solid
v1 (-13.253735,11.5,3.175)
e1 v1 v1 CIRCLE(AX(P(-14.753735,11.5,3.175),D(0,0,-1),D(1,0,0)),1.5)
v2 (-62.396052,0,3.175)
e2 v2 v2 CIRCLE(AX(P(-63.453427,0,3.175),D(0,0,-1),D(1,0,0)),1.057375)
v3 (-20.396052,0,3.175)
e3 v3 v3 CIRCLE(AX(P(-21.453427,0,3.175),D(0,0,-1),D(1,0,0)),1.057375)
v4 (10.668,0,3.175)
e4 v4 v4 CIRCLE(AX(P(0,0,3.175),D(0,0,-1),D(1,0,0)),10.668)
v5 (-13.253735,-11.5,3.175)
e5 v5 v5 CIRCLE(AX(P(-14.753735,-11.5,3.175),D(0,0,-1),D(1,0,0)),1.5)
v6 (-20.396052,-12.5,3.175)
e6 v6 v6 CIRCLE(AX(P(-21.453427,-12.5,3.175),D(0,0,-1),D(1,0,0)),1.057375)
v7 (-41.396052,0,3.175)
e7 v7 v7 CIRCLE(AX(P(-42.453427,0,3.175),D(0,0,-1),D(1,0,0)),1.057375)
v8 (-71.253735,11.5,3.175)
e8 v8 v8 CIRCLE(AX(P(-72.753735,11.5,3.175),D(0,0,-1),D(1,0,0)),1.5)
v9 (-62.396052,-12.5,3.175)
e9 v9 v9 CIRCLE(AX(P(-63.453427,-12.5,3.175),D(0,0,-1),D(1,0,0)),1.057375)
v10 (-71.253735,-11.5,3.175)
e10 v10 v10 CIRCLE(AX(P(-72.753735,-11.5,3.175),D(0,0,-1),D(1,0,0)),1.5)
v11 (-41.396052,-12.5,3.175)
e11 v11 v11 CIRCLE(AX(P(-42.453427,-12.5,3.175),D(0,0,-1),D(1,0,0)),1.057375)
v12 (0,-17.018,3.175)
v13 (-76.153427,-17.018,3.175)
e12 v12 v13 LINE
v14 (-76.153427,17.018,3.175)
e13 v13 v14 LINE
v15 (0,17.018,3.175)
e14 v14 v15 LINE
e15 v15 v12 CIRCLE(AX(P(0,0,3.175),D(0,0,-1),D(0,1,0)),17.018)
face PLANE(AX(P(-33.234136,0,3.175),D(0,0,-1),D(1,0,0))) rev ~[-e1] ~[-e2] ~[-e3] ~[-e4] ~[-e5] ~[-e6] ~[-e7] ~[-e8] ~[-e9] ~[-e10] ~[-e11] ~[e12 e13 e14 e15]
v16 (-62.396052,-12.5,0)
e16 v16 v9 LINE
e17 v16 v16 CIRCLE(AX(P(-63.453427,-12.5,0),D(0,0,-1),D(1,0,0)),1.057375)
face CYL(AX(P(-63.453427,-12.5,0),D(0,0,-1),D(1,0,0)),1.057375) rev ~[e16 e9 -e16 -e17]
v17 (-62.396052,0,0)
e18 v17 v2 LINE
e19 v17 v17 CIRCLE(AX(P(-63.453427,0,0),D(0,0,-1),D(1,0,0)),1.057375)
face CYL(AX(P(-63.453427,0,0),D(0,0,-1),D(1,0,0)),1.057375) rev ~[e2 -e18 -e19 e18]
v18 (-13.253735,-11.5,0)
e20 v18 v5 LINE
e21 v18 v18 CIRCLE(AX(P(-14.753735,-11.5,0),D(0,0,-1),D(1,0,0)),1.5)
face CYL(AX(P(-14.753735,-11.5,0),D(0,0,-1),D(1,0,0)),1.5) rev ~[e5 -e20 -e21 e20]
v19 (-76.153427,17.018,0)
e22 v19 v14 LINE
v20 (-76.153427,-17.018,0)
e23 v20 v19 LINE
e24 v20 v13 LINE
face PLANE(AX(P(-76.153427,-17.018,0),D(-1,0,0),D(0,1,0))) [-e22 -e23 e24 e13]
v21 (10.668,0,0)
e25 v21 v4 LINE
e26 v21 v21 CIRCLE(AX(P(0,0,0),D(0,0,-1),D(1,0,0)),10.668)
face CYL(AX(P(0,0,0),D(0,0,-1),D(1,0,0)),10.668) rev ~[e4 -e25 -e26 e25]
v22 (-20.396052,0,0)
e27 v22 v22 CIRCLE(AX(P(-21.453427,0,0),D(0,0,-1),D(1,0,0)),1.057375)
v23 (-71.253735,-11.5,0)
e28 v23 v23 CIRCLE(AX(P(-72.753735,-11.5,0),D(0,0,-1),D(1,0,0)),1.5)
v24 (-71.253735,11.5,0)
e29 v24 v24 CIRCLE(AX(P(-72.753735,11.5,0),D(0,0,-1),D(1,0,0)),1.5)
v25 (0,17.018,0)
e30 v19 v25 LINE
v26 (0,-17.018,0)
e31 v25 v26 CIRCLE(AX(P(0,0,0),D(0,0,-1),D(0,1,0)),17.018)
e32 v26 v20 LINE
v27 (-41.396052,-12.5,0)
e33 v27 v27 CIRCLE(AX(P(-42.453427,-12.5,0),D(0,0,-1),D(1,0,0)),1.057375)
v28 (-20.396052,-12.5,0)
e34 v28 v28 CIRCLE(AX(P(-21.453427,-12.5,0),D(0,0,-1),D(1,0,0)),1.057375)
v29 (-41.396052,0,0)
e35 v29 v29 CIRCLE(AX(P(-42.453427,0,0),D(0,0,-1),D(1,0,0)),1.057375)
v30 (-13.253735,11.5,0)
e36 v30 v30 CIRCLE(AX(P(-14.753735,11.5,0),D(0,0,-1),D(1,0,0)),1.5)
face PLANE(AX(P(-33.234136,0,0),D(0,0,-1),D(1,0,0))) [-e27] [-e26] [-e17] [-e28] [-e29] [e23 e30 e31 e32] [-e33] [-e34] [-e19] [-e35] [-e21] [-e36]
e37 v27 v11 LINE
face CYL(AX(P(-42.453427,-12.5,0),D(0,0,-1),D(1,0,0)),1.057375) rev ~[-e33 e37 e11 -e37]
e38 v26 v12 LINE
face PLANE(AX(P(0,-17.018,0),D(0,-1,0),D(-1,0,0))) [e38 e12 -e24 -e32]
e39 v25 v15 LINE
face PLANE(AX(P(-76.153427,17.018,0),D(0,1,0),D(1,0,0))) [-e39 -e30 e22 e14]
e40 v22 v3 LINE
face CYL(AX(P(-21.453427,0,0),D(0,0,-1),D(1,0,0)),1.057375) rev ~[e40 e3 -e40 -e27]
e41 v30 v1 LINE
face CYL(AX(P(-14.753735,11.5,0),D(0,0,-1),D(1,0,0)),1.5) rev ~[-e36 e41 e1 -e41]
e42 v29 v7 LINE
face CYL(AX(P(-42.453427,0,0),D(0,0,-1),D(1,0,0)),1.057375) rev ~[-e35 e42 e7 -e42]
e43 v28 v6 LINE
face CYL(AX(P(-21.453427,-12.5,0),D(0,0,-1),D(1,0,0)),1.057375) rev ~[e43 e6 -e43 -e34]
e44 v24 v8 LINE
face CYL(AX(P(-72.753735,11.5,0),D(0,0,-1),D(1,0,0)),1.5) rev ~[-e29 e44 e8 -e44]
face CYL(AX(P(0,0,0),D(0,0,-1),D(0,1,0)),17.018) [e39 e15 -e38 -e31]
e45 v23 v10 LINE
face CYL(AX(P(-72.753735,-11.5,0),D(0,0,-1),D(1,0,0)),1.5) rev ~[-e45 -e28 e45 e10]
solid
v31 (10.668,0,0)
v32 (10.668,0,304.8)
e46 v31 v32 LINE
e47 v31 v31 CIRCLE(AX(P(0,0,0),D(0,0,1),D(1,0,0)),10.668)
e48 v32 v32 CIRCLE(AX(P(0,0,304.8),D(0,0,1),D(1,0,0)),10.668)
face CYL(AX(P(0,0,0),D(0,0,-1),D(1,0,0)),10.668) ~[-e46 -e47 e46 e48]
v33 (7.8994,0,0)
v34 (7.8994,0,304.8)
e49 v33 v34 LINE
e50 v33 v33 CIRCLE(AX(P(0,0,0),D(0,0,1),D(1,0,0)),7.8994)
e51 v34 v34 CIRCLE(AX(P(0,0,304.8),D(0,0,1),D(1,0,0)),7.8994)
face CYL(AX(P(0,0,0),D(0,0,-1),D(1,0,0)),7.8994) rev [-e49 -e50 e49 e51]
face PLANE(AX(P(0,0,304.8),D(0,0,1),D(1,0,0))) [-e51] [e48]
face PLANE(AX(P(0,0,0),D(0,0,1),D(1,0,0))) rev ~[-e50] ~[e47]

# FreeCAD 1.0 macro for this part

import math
import FreeCAD as App
import Part
import Sketcher

V = App.Vector
Q = App.Units.Quantity

doc = App.newDocument("Part")
body = doc.addObject("PartDesign::Body", "Body")

sketch1 = body.newObject("Sketcher::SketchObject", "Sketch")
sketch1.AttachmentSupport = (doc.getObject("XY_Plane"), [""])
sketch1.MapMode = "FlatFace"
sketch1.addGeometry([
    Part.Circle(V(0, 0, 0), V(0, 0, 1), 11),
    Part.Circle(V(0, 0, 0), V(0, 0, 1), 8),
], False)
sketch1.addConstraint([
    Sketcher.Constraint("Coincident", 0, 3, -1, 1),
    Sketcher.Constraint("Coincident", 1, 3, -1, 1),
    Sketcher.Constraint("Diameter", 0, Q("0.84 in")),
    Sketcher.Constraint("Diameter", 1, Q("0.622 in")),
])
pad1 = body.newObject("PartDesign::Pad", "Pad")
pad1.Profile = sketch1
pad1.Length = Q("12 in")
body2 = doc.addObject("PartDesign::Body", "Body001")

sketch2 = body2.newObject("Sketcher::SketchObject", "Sketch001")
sketch2.AttachmentSupport = (doc.getObject("XY_Plane001"), [""])
sketch2.MapMode = "FlatFace"
sketch2.addGeometry([
    Part.LineSegment(V(-76, 17, 0), V(0, 17, 0)),
    Part.ArcOfCircle(Part.Circle(V(0, 0, 0), V(0, 0, 1), 17), math.radians(-90), math.radians(90)),
    Part.LineSegment(V(0, -17, 0), V(-76, -17, 0)),
    Part.LineSegment(V(-76, -17, 0), V(-76, 17, 0)),
    Part.Circle(V(0, 0, 0), V(0, 0, 1), 11),
], False)
sketch2.addConstraint([
    Sketcher.Constraint("Tangent", 0, 2, 1, 2),
    Sketcher.Constraint("Tangent", 1, 1, 2, 1),
    Sketcher.Constraint("Coincident", 2, 2, 3, 1),
    Sketcher.Constraint("Coincident", 3, 2, 0, 1),
    Sketcher.Constraint("Horizontal", 0),
    Sketcher.Constraint("Horizontal", 2),
    Sketcher.Constraint("Vertical", 3),
    Sketcher.Constraint("Coincident", 1, 3, -1, 1),
    Sketcher.Constraint("Coincident", 4, 3, -1, 1),
    Sketcher.Constraint("Diameter", 4, Q("0.84 in")),
    Sketcher.Constraint("Radius", 1, Q("0.67 in")),
    Sketcher.Constraint("DistanceX", 0, 1, 0, 2, Q("76.153427 mm")),
])
pad2 = body2.newObject("PartDesign::Pad", "Pad001")
pad2.Profile = sketch2
pad2.Length = Q("0.125 in")

sketch3 = body2.newObject("Sketcher::SketchObject", "Sketch002")
sketch3.AttachmentSupport = (doc.getObject("XY_Plane001"), [""])
sketch3.MapMode = "FlatFace"
sketch3.addGeometry([
    Part.Circle(V(-63.5, 0, 0), V(0, 0, 1), 1.1),
    Part.Circle(V(-63.5, -12.5, 0), V(0, 0, 1), 1.1),
    Part.Circle(V(-42.5, 0, 0), V(0, 0, 1), 1.1),
    Part.Circle(V(-42.5, -12.5, 0), V(0, 0, 1), 1.1),
    Part.Circle(V(-21.5, 0, 0), V(0, 0, 1), 1.1),
    Part.Circle(V(-21.5, -12.5, 0), V(0, 0, 1), 1.1),
], False)
sketch3.addConstraint([
    Sketcher.Constraint("Equal", 0, 1),
    Sketcher.Constraint("Equal", 1, 2),
    Sketcher.Constraint("Equal", 2, 3),
    Sketcher.Constraint("Equal", 3, 4),
    Sketcher.Constraint("Equal", 4, 5),
    Sketcher.Constraint("PointOnObject", 0, 3, -1),
    Sketcher.Constraint("PointOnObject", 2, 3, -1),
    Sketcher.Constraint("PointOnObject", 4, 3, -1),
    Sketcher.Constraint("Horizontal", 1, 3, 3, 3),
    Sketcher.Constraint("Horizontal", 3, 3, 5, 3),
    Sketcher.Constraint("Vertical", 0, 3, 1, 3),
    Sketcher.Constraint("Vertical", 2, 3, 3, 3),
    Sketcher.Constraint("Vertical", 4, 3, 5, 3),
    Sketcher.Constraint("Diameter", 0, Q("2.11475 mm")),
    Sketcher.Constraint("DistanceY", 1, 3, -1, 1, Q("12.5 mm")),
    Sketcher.Constraint("DistanceX", 0, 3, 2, 3, Q("21 mm")),
    Sketcher.Constraint("DistanceX", 2, 3, 4, 3, Q("21 mm")),
    Sketcher.Constraint("DistanceX", 0, 3, -1, 1, Q("63.453427 mm")),
])
pocket1 = body2.newObject("PartDesign::Pocket", "Pocket")
pocket1.Profile = sketch3
pocket1.Type = "ThroughAll"
pocket1.Reversed = True

sketch4 = body2.newObject("Sketcher::SketchObject", "Sketch003")
sketch4.AttachmentSupport = (doc.getObject("XY_Plane001"), [""])
sketch4.MapMode = "FlatFace"
sketch4.addGeometry([
    Part.Circle(V(-72.8, -11.5, 0), V(0, 0, 1), 1.5),
    Part.Circle(V(-72.8, 11.5, 0), V(0, 0, 1), 1.5),
    Part.Circle(V(-14.8, -11.5, 0), V(0, 0, 1), 1.5),
    Part.Circle(V(-14.8, 11.5, 0), V(0, 0, 1), 1.5),
], False)
sketch4.addConstraint([
    Sketcher.Constraint("Equal", 0, 1),
    Sketcher.Constraint("Equal", 1, 2),
    Sketcher.Constraint("Equal", 2, 3),
    Sketcher.Constraint("Symmetric", 0, 3, 1, 3, -1),
    Sketcher.Constraint("Symmetric", 2, 3, 3, 3, -1),
    Sketcher.Constraint("Horizontal", 0, 3, 2, 3),
    Sketcher.Constraint("Diameter", 0, Q("3 mm")),
    Sketcher.Constraint("DistanceY", 0, 3, -1, 1, Q("11.5 mm")),
    Sketcher.Constraint("DistanceX", 0, 3, 2, 3, Q("58 mm")),
    Sketcher.Constraint("DistanceX", 0, 3, -1, 1, Q("72.753735 mm")),
])
pocket2 = body2.newObject("PartDesign::Pocket", "Pocket001")
pocket2.Profile = sketch4
pocket2.Type = "ThroughAll"
pocket2.Reversed = True

doc.recompute()
